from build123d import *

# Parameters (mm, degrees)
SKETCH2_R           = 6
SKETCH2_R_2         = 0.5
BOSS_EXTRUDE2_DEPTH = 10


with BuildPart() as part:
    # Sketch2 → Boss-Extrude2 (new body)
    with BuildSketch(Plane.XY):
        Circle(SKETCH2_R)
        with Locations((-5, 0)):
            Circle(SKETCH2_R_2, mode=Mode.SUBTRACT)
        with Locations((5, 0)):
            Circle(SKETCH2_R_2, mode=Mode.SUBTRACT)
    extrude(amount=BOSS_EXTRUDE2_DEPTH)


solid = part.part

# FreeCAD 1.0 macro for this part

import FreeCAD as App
import Part
import Sketcher

doc = App.newDocument("Part")
body = doc.addObject("PartDesign::Body", "Body")

# Sketch on XY plane
sketch1 = body.newObject("Sketcher::SketchObject", "Sketch")
sketch1.AttachmentSupport = (doc.getObject("XY_Plane"), [""])
sketch1.MapMode = "FlatFace"
sketch1.addGeometry([
    Part.Circle(App.Vector(0, 0, 0), App.Vector(0, 0, 1), 6),
    Part.Circle(App.Vector(-5, 0, 0), App.Vector(0, 0, 1), 0.5),
    Part.Circle(App.Vector(5, 0, 0), App.Vector(0, 0, 1), 0.5),
], False)
sketch1.addConstraint([
    Sketcher.Constraint("Coincident", 0, 3, -1, 1),
    Sketcher.Constraint("Equal", 1, 2),
    Sketcher.Constraint("Symmetric", 1, 3, 2, 3, -1, 1),
    Sketcher.Constraint("PointOnObject", 1, 3, -1),
    Sketcher.Constraint("Diameter", 0, 12.0),
    Sketcher.Constraint("Diameter", 1, 1.0),
    Sketcher.Constraint("DistanceX", 1, 3, -1, 1, 5.0),
])
pad1 = body.newObject("PartDesign::Pad", "Pad")
pad1.Profile = sketch1
pad1.Length = 10

doc.recompute()
